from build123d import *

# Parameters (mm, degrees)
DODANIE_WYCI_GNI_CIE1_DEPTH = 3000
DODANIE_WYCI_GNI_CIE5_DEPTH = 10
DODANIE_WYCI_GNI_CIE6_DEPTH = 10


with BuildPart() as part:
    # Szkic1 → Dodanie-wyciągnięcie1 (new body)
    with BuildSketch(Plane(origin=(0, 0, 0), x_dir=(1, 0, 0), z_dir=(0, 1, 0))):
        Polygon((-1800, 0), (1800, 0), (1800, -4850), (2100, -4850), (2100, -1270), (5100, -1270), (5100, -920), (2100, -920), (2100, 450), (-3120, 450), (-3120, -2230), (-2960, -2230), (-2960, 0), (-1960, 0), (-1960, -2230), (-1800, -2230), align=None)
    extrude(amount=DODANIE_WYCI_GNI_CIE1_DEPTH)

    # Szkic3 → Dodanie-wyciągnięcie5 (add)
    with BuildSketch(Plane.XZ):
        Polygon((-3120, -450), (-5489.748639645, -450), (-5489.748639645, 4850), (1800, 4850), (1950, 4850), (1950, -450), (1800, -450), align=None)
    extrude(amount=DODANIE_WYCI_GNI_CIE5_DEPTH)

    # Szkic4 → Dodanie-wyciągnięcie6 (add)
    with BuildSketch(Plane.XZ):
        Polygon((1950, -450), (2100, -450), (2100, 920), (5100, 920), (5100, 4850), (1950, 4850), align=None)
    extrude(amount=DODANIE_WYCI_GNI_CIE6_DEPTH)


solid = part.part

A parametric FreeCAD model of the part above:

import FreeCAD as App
import Part
import Sketcher


def add_polygon(sketch, points):
    """Adds a closed chain of lines whose ends are joined by coincident constraints."""
    first, n = sketch.GeometryCount, len(points)
    for a, b in zip(points, points[1:] + points[:1]):
        sketch.addGeometry(Part.LineSegment(App.Vector(*a, 0), App.Vector(*b, 0)), False)
    for i in range(n):
        sketch.addConstraint(Sketcher.Constraint("Coincident", first + i, 2, first + (i + 1) % n, 1))

doc = App.newDocument("Part")
params = doc.addObject("Spreadsheet::Sheet", "Params")
for row, (alias, value) in enumerate([
    ("sketch1_width", "3600 mm"),
    ("sketch1_width2", "300 mm"),
    ("sketch1_width3", "3000 mm"),
    ("sketch1_width4", "5220 mm"),
    ("sketch1_width5", "160 mm"),
    ("pad1_length", "3000 mm"),
    ("sketch2_height", "5300 mm"),
    ("pad2_length", "10 mm"),
    ("sketch3_width", "150 mm"),
    ("sketch3_width2", "3000 mm"),
    ("sketch3_height", "1370 mm"),
    ("sketch3_height2", "3930 mm"),
    ("pad3_length", "10 mm"),
], start=1):
    params.set(f"A{row}", alias)
    params.set(f"B{row}", "=" + value)
    params.setAlias(f"B{row}", alias)

body = doc.addObject("PartDesign::Body", "Body")

# Sketch on XZ plane
sketch1 = doc.addObject("Sketcher::SketchObject", "Sketch")
body.addObject(sketch1)
sketch1.AttachmentSupport = (doc.XZ_Plane, [""])
sketch1.MapMode = "FlatFace"
add_polygon(sketch1, [(-1800, 0), (1800, 0), (1800, 4850), (2100, 4850), (2100, 1270), (5100, 1270), (5100, 920), (2100, 920), (2100, -450), (-3120, -450), (-3120, 2230), (-2960, 2230), (-2960, 0), (-1960, 0), (-1960, 2230), (-1800, 2230)])  # lines 0-15
sketch1.addConstraint(Sketcher.Constraint("Horizontal", 0))
sketch1.addConstraint(Sketcher.Constraint("Vertical", 1))
sketch1.addConstraint(Sketcher.Constraint("Horizontal", 2))
sketch1.addConstraint(Sketcher.Constraint("Vertical", 3))
sketch1.addConstraint(Sketcher.Constraint("Horizontal", 4))
sketch1.addConstraint(Sketcher.Constraint("Vertical", 5))
sketch1.addConstraint(Sketcher.Constraint("Horizontal", 6))
sketch1.addConstraint(Sketcher.Constraint("Vertical", 7))
sketch1.addConstraint(Sketcher.Constraint("Horizontal", 8))
sketch1.addConstraint(Sketcher.Constraint("Vertical", 9))
sketch1.addConstraint(Sketcher.Constraint("Horizontal", 10))
sketch1.addConstraint(Sketcher.Constraint("Vertical", 11))
sketch1.addConstraint(Sketcher.Constraint("Horizontal", 12))
sketch1.addConstraint(Sketcher.Constraint("Vertical", 13))
sketch1.addConstraint(Sketcher.Constraint("Horizontal", 14))
sketch1.addConstraint(Sketcher.Constraint("Vertical", 15))
sketch1.addConstraint(Sketcher.Constraint("Symmetric", 0, 2, 15, 2, -1, 1))
sketch1.addConstraint(Sketcher.Constraint("PointOnObject", 11, 2, -1))
sketch1.addConstraint(Sketcher.Constraint("Horizontal", 10, 2, 13, 2))
sketch1.addConstraint(Sketcher.Constraint("Vertical", 3, 2, 6, 2))
sketch1.addConstraint(Sketcher.Constraint("Equal", 10, 14))
sketch1.addConstraint(Sketcher.Constraint("DistanceX", 0, 1, 0, 2, 3600.0))
sketch1.addConstraint(Sketcher.Constraint("DistanceX", 2, 1, 2, 2, 300.0))
sketch1.addConstraint(Sketcher.Constraint("DistanceX", 4, 1, 4, 2, 3000.0))
sketch1.addConstraint(Sketcher.Constraint("DistanceX", 8, 2, 8, 1, 5220.0))
sketch1.addConstraint(Sketcher.Constraint("DistanceX", 10, 1, 10, 2, 160.0))
sketch1.addConstraint(Sketcher.Constraint("DistanceY", 1, 1, 1, 2, 4850.0))
sketch1.addConstraint(Sketcher.Constraint("DistanceY", 3, 2, 3, 1, 3580.0))
sketch1.addConstraint(Sketcher.Constraint("DistanceY", 5, 2, 5, 1, 350.0))
sketch1.addConstraint(Sketcher.Constraint("DistanceY", 7, 2, 7, 1, 1370.0))
sketch1.addConstraint(Sketcher.Constraint("DistanceY", 9, 1, 9, 2, 2680.0))
sketch1.setExpression("Constraints[37]", "Params.sketch1_width")
sketch1.setExpression("Constraints[38]", "Params.sketch1_width2")
sketch1.setExpression("Constraints[39]", "Params.sketch1_width3")
sketch1.setExpression("Constraints[40]", "Params.sketch1_width4")
sketch1.setExpression("Constraints[41]", "Params.sketch1_width5")
pad1 = doc.addObject("PartDesign::Pad", "Pad")
body.addObject(pad1)
pad1.Profile = sketch1
pad1.setExpression("Length", "Params.pad1_length")
pad1.Reversed = True

# Sketch on XZ plane
sketch2 = doc.addObject("Sketcher::SketchObject", "Sketch001")
body.addObject(sketch2)
sketch2.AttachmentSupport = (doc.XZ_Plane, [""])
sketch2.MapMode = "FlatFace"
add_polygon(sketch2, [(-5490, -450), (1950, -450), (1950, 4850), (-5490, 4850)])  # lines 0-3
sketch2.addConstraint(Sketcher.Constraint("Horizontal", 0))
sketch2.addConstraint(Sketcher.Constraint("Vertical", 1))
sketch2.addConstraint(Sketcher.Constraint("Horizontal", 2))
sketch2.addConstraint(Sketcher.Constraint("Vertical", 3))
sketch2.addConstraint(Sketcher.Constraint("DistanceY", 1, 1, 1, 2, 5300.0))
sketch2.addConstraint(Sketcher.Constraint("DistanceX", -1, 1, 0, 2, 1950.0))
sketch2.addConstraint(Sketcher.Constraint("DistanceY", 0, 2, -1, 1, 450.0))
sketch2.addConstraint(Sketcher.Constraint("DistanceX", 0, 1, 0, 2, 7439.74864))
sketch2.setExpression("Constraints[8]", "Params.sketch2_height")
pad2 = doc.addObject("PartDesign::Pad", "Pad001")
body.addObject(pad2)
pad2.Profile = sketch2
pad2.setExpression("Length", "Params.pad2_length")

# Sketch on XZ plane
sketch3 = doc.addObject("Sketcher::SketchObject", "Sketch002")
body.addObject(sketch3)
sketch3.AttachmentSupport = (doc.XZ_Plane, [""])
sketch3.MapMode = "FlatFace"
add_polygon(sketch3, [(1950, -450), (2100, -450), (2100, 920), (5100, 920), (5100, 4850), (1950, 4850)])  # lines 0-5
sketch3.addConstraint(Sketcher.Constraint("Horizontal", 0))
sketch3.addConstraint(Sketcher.Constraint("Vertical", 1))
sketch3.addConstraint(Sketcher.Constraint("Horizontal", 2))
sketch3.addConstraint(Sketcher.Constraint("Vertical", 3))
sketch3.addConstraint(Sketcher.Constraint("Horizontal", 4))
sketch3.addConstraint(Sketcher.Constraint("Vertical", 5))
sketch3.addConstraint(Sketcher.Constraint("DistanceX", 0, 1, 0, 2, 150.0))
sketch3.addConstraint(Sketcher.Constraint("DistanceX", 2, 1, 2, 2, 3000.0))
sketch3.addConstraint(Sketcher.Constraint("DistanceY", 1, 1, 1, 2, 1370.0))
sketch3.addConstraint(Sketcher.Constraint("DistanceY", 3, 1, 3, 2, 3930.0))
sketch3.addConstraint(Sketcher.Constraint("DistanceX", -1, 1, 0, 2, 2100.0))
sketch3.addConstraint(Sketcher.Constraint("DistanceY", 0, 2, -1, 1, 450.0))
sketch3.setExpression("Constraints[12]", "Params.sketch3_width")
sketch3.setExpression("Constraints[13]", "Params.sketch3_width2")
sketch3.setExpression("Constraints[14]", "Params.sketch3_height")
sketch3.setExpression("Constraints[15]", "Params.sketch3_height2")
pad3 = doc.addObject("PartDesign::Pad", "Pad002")
body.addObject(pad3)
pad3.Profile = sketch3
pad3.setExpression("Length", "Params.pad3_length")

doc.recompute()
